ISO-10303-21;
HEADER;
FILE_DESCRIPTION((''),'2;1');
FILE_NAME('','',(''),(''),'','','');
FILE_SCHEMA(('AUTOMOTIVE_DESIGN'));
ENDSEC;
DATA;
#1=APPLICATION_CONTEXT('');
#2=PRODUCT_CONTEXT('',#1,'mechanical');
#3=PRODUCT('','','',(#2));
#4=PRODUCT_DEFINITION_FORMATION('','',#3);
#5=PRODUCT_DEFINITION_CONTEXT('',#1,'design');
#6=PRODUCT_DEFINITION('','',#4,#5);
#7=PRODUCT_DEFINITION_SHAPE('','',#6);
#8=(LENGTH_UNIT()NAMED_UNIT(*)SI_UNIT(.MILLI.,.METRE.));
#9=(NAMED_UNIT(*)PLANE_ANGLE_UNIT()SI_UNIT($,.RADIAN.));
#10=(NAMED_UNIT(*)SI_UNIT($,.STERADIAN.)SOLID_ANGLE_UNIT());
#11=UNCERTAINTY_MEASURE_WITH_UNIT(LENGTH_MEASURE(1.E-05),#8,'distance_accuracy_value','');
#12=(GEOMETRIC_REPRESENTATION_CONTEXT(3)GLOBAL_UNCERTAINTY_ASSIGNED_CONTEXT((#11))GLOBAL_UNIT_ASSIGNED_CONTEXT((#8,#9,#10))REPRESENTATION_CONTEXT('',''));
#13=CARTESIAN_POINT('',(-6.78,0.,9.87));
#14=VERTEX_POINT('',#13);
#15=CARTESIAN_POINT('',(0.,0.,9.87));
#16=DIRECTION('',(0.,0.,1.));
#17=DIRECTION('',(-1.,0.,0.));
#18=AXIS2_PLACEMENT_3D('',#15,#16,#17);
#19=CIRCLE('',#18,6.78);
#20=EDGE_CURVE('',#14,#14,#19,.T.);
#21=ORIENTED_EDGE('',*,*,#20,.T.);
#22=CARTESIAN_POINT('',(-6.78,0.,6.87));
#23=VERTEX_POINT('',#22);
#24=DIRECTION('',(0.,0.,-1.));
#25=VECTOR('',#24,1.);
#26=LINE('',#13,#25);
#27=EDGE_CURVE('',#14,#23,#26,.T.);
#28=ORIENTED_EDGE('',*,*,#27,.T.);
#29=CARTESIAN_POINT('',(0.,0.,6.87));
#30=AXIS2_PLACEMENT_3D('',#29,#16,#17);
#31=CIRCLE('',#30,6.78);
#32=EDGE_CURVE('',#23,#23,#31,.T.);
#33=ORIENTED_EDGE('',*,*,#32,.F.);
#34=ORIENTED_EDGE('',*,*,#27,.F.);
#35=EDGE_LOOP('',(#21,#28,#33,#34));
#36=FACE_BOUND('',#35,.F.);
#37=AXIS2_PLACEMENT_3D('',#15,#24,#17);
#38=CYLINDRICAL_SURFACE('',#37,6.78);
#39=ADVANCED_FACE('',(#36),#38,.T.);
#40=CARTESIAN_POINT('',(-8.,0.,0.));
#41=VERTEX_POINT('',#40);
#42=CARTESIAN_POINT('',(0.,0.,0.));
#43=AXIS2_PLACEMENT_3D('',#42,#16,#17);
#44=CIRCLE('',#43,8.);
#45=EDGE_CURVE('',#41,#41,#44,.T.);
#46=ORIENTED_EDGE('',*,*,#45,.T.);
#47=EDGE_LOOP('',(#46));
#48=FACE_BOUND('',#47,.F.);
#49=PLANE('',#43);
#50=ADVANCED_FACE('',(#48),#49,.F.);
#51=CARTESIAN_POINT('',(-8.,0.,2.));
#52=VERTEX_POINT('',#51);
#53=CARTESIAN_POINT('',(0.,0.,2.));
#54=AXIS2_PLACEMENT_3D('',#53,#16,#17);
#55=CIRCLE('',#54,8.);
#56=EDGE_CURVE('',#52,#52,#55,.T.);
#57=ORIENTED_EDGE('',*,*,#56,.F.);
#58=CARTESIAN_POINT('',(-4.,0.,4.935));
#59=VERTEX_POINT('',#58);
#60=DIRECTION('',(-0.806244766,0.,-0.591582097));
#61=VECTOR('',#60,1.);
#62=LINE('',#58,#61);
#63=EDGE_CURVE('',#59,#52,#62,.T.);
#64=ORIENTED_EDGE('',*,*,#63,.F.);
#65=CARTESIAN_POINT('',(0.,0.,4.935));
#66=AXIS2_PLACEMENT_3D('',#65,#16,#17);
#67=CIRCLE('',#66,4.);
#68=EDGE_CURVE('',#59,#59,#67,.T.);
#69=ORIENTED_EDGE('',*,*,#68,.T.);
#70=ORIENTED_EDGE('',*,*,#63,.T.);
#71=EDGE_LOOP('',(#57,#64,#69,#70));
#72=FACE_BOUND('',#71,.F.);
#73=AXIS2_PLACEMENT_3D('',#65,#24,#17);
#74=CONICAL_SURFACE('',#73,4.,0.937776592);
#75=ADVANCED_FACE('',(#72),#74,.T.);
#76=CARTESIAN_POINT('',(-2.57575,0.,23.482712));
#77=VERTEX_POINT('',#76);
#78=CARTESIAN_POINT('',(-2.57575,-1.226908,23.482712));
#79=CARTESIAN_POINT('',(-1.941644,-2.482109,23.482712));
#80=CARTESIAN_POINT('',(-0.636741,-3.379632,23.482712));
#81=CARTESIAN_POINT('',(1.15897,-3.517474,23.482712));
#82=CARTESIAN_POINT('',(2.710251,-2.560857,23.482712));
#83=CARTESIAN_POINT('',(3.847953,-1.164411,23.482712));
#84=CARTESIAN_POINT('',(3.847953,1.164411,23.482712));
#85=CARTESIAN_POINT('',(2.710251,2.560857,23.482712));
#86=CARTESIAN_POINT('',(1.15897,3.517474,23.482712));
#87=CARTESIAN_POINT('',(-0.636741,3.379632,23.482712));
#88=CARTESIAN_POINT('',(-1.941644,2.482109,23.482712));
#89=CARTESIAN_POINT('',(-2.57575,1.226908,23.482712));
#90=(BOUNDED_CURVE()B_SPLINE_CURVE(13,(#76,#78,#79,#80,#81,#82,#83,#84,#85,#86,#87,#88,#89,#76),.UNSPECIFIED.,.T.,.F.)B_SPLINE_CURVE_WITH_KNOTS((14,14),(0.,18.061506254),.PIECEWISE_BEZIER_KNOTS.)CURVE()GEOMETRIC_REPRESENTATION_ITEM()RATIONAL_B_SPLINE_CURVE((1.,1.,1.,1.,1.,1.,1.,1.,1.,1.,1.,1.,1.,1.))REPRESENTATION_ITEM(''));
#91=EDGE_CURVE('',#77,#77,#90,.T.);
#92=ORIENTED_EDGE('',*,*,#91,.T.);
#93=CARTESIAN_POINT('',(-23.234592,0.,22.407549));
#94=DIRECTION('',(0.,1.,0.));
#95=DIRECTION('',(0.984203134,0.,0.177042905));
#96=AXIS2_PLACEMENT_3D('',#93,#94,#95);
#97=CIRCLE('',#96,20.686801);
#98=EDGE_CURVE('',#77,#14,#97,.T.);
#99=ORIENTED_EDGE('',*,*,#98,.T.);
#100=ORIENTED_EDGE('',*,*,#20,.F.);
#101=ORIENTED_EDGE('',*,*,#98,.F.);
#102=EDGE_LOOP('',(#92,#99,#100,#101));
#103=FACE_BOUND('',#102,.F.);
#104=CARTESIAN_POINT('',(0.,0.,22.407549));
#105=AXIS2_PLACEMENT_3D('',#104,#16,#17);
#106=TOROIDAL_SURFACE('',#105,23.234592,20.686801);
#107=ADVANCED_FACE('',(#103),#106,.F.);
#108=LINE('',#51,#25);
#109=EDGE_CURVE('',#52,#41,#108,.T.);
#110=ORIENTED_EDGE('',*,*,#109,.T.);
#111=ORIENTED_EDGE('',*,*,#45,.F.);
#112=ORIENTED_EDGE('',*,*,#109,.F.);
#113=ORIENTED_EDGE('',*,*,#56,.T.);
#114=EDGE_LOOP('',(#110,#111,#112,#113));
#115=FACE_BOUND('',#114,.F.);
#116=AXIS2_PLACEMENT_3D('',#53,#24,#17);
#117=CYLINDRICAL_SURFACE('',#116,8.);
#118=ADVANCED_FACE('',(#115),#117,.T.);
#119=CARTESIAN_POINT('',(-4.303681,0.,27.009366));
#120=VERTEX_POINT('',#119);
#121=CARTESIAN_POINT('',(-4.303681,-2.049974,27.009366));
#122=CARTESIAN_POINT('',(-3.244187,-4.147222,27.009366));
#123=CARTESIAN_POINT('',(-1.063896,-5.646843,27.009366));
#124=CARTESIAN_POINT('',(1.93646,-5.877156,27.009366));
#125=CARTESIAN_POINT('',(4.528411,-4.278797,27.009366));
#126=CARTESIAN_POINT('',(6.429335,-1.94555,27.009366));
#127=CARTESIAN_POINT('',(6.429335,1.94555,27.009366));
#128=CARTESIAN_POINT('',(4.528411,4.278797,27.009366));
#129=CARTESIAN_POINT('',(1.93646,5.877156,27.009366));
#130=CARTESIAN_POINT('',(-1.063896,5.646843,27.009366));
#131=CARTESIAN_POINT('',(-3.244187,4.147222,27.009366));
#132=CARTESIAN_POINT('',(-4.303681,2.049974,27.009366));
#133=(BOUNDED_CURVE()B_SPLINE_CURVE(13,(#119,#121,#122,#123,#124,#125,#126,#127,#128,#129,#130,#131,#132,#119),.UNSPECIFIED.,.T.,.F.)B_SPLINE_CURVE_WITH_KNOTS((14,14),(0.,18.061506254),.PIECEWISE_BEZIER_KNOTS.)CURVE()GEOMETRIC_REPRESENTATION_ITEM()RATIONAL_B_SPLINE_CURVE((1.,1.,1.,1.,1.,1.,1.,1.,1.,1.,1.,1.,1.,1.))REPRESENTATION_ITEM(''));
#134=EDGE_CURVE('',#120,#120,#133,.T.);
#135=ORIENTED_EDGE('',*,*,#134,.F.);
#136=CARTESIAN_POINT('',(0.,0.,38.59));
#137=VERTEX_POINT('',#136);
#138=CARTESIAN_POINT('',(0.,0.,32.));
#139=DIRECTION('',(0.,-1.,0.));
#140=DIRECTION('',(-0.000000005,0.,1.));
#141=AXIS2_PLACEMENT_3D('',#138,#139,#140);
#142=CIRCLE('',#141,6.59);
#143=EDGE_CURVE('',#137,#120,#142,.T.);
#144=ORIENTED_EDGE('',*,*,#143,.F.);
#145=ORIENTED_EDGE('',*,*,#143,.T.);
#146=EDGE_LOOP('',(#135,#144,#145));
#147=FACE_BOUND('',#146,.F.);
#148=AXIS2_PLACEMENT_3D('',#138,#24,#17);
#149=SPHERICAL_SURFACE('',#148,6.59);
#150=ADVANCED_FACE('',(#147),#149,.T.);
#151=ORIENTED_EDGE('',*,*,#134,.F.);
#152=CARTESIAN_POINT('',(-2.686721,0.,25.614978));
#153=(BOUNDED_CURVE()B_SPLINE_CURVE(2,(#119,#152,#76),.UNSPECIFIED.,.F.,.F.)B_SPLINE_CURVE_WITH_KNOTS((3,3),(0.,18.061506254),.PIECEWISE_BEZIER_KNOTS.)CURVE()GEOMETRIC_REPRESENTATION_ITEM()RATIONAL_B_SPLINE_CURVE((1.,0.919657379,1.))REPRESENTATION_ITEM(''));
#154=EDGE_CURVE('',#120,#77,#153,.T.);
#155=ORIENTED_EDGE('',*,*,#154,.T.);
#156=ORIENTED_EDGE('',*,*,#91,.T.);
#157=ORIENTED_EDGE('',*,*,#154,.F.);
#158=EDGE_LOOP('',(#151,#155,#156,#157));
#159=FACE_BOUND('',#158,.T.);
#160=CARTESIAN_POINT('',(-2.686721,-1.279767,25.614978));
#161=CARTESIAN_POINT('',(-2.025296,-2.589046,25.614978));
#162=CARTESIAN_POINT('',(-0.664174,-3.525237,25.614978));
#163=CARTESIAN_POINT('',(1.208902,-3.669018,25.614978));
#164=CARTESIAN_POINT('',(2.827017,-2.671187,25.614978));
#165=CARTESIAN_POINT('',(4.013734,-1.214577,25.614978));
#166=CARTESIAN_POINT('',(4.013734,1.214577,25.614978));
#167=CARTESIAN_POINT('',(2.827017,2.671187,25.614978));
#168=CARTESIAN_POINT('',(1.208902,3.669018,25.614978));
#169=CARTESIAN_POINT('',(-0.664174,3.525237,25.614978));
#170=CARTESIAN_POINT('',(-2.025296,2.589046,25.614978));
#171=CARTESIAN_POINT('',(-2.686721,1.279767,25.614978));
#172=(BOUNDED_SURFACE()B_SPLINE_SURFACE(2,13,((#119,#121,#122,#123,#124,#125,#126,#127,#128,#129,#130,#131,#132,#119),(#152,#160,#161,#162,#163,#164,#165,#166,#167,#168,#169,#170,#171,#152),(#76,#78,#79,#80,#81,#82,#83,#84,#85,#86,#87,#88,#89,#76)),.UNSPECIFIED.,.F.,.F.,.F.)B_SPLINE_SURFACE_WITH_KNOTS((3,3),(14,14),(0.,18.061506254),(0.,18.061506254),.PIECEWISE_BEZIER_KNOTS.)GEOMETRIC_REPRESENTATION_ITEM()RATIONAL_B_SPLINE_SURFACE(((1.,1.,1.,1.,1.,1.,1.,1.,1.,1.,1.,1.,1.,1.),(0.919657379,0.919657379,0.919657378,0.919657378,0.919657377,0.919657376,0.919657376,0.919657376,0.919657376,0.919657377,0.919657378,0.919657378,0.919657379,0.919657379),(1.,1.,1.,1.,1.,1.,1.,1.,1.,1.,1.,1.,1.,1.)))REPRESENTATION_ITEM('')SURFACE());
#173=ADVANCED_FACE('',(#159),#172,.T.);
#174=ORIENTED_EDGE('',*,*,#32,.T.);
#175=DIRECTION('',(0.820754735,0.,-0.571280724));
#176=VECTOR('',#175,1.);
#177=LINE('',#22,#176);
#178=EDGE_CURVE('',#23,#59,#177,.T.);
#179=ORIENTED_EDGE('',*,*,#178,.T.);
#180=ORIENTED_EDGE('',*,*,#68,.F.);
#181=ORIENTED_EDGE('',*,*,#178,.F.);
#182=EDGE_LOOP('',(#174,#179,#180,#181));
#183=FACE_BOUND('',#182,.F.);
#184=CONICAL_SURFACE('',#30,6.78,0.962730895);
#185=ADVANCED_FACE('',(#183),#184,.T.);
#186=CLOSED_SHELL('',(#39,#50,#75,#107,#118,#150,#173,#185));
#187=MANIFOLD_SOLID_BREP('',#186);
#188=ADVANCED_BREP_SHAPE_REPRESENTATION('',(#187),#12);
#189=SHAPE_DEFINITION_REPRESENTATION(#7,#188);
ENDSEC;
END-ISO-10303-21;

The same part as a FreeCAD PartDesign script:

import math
import FreeCAD as App
import Part
import Sketcher
from FreeCAD import Vector


def edges_at(feature, points):
    """Names of the edges that pass closest to the given points."""
    edges = feature.Shape.Edges
    near = lambda p: min(range(len(edges)), key=lambda i: edges[i].distToShape(Part.Vertex(*p))[0])
    return sorted({f"Edge{near(p) + 1}" for p in points})

doc = App.newDocument("Part")
body = doc.addObject("PartDesign::Body", "Body")

sketch1 = doc.addObject("Sketcher::SketchObject", "Sketch")
body.addObject(sketch1)
sketch1.AttachmentSupport = (doc.XZ_Plane, [""])
sketch1.MapMode = "FlatFace"
sketch1.addGeometry(Part.LineSegment(Vector(-8, 0, 0), Vector(0, 0, 0)), False)
sketch1.addGeometry(Part.LineSegment(Vector(0, 0, 0), Vector(0, 38.6, 0)), False)
sketch1.addGeometry(Part.ArcOfCircle(Part.Circle(Vector(0, 32, 0), Vector(0, 0, 1), 6.6), math.radians(90), math.radians(244)), False)
sketch1.addGeometry(Part.ArcOfCircle(Part.Circle(Vector(-23.2, 22.4, 0), Vector(0, 0, 1), 20.7), math.radians(-37), math.radians(10)), False)
sketch1.addGeometry(Part.LineSegment(Vector(-6.8, 9.9, 0), Vector(-6.8, 6.9, 0)), False)
sketch1.addGeometry(Part.LineSegment(Vector(-6.8, 6.9, 0), Vector(-4, 4.9, 0)), False)
sketch1.addGeometry(Part.LineSegment(Vector(-4, 4.9, 0), Vector(-8, 2, 0)), False)
sketch1.addGeometry(Part.LineSegment(Vector(-8, 2, 0), Vector(-8, 0, 0)), False)
sketch1.addConstraint(Sketcher.Constraint("Coincident", 0, 2, 1, 1))
sketch1.addConstraint(Sketcher.Constraint("Coincident", 1, 2, 2, 1))
sketch1.addConstraint(Sketcher.Constraint("Coincident", 2, 2, 3, 2))
sketch1.addConstraint(Sketcher.Constraint("Coincident", 3, 1, 4, 1))
sketch1.addConstraint(Sketcher.Constraint("Coincident", 4, 2, 5, 1))
sketch1.addConstraint(Sketcher.Constraint("Coincident", 5, 2, 6, 1))
sketch1.addConstraint(Sketcher.Constraint("Coincident", 6, 2, 7, 1))
sketch1.addConstraint(Sketcher.Constraint("Coincident", 7, 2, 0, 1))
sketch1.addConstraint(Sketcher.Constraint("Horizontal", 0))
sketch1.addConstraint(Sketcher.Constraint("Vertical", 1))
sketch1.addConstraint(Sketcher.Constraint("Vertical", 4))
sketch1.addConstraint(Sketcher.Constraint("Vertical", 7))
sketch1.addConstraint(Sketcher.Constraint("Coincident", 0, 2, -1, 1))
sketch1.addConstraint(Sketcher.Constraint("PointOnObject", 2, 3, -2))
sketch1.addConstraint(Sketcher.Constraint("DistanceX", 0, 1, 0, 2, 8.0))
sketch1.addConstraint(Sketcher.Constraint("DistanceY", 4, 2, 4, 1, 3.0))
sketch1.addConstraint(Sketcher.Constraint("DistanceY", 7, 2, 7, 1, 2.0))
sketch1.addConstraint(Sketcher.Constraint("Radius", 2, 6.59))
sketch1.addConstraint(Sketcher.Constraint("DistanceY", -1, 1, 2, 3, 32.0))
sketch1.addConstraint(Sketcher.Constraint("DistanceX", 5, 2, -1, 1, 4.0))
sketch1.addConstraint(Sketcher.Constraint("Radius", 3, 20.686801))
sketch1.addConstraint(Sketcher.Constraint("DistanceY", 3, 1, 2, 2, 16.2))
sketch1.addConstraint(Sketcher.Constraint("DistanceY", -1, 1, 2, 2, 26.07))
sketch1.addConstraint(Sketcher.Constraint("DistanceX", 3, 1, -1, 1, 6.78))
sketch1.addConstraint(Sketcher.Constraint("DistanceY", -1, 1, 5, 2, 4.935))
revolution = doc.addObject("PartDesign::Revolution", "Revolution")
body.addObject(revolution)
revolution.Profile = sketch1
revolution.ReferenceAxis = (sketch1, ["V_Axis"])
revolution.Angle = 360
doc.recompute()

fillet = doc.addObject("PartDesign::Fillet", "Fillet")
body.addObject(fillet)
fillet.Base = (revolution, edges_at(revolution, [(2.875, 0, 26.07), (-6.423, 0, 33.475)]))
fillet.Radius = 5

doc.recompute()
